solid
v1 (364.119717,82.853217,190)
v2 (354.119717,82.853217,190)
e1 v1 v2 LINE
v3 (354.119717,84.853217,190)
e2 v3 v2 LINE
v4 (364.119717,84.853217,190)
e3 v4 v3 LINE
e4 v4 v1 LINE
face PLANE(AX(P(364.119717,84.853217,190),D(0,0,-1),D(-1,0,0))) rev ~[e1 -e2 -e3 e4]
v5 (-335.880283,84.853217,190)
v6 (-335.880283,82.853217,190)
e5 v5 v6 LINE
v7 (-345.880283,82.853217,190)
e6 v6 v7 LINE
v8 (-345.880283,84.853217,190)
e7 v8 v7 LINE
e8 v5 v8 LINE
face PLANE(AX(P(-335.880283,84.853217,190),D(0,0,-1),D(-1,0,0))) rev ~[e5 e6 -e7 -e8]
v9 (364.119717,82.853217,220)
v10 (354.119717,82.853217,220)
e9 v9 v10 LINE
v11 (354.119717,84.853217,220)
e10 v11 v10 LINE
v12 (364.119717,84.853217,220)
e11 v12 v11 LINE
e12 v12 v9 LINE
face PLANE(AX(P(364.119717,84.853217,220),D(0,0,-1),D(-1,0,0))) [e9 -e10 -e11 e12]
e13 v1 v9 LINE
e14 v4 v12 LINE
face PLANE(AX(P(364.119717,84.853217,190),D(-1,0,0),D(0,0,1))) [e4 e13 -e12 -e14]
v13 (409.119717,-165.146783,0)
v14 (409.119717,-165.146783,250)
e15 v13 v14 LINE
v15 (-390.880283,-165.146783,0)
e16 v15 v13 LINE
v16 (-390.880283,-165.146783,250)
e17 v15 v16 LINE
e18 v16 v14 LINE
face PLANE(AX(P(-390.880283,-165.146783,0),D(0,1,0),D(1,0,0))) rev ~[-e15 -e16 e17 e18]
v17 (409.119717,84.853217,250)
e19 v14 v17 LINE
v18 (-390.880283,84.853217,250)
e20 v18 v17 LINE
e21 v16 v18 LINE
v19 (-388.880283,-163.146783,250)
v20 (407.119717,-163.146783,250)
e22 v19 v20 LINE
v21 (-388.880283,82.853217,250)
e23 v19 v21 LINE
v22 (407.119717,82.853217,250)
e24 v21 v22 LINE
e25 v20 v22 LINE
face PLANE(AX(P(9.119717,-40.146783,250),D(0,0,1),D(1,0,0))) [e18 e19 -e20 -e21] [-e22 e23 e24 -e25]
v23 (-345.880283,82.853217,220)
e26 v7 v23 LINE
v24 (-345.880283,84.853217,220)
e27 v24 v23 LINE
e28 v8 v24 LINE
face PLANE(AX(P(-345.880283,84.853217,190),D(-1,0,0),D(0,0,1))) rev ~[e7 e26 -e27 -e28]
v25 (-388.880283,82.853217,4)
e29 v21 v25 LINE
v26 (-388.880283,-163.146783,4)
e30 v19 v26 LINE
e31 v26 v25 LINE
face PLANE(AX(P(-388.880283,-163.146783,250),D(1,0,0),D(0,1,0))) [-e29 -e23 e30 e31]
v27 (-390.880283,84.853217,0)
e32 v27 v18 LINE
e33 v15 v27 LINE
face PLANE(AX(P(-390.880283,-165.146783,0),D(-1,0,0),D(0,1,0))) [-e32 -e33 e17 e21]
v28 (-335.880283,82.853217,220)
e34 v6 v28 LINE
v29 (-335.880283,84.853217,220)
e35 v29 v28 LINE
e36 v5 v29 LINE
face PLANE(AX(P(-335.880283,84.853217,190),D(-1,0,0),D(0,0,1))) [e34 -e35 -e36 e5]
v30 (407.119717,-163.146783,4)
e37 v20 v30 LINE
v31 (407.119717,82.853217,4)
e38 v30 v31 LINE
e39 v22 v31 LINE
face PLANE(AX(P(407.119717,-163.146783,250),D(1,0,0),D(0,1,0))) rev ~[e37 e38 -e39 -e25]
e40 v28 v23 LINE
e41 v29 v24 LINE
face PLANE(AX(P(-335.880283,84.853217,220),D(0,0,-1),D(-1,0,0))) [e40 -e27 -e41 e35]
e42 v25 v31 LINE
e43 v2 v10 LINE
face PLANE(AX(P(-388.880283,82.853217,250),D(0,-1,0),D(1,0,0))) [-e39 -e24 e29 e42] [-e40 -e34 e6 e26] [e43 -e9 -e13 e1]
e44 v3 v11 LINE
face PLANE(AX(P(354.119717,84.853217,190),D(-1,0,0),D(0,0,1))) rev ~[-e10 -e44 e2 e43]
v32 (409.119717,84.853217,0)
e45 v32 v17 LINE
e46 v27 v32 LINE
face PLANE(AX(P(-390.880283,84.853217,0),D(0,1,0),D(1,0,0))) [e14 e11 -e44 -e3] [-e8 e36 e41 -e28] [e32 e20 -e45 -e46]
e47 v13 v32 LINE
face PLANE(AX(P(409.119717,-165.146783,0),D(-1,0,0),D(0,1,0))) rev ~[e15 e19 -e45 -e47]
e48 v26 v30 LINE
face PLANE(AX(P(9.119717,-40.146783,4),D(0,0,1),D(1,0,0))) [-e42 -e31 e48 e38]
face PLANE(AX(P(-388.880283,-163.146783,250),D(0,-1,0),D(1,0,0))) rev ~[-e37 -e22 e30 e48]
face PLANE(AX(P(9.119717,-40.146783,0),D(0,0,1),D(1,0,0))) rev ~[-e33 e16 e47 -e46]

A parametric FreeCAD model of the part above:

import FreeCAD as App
import Part
import Sketcher
Q = App.Units.Quantity


def add_polygon(sketch, points):
    """Adds a closed chain of lines whose ends are joined by coincident constraints."""
    first, n = sketch.GeometryCount, len(points)
    for a, b in zip(points, points[1:] + points[:1]):
        sketch.addGeometry(Part.LineSegment(App.Vector(*a, 0), App.Vector(*b, 0)), False)
    for i in range(n):
        sketch.addConstraint(Sketcher.Constraint("Coincident", first + i, 2, first + (i + 1) % n, 1))

doc = App.newDocument("Part")
body = doc.addObject("PartDesign::Body", "Body")

# Sketch on XY plane
sketch1 = doc.addObject("Sketcher::SketchObject", "Sketch")
body.addObject(sketch1)
sketch1.AttachmentSupport = (doc.XY_Plane, [""])
sketch1.MapMode = "FlatFace"
add_polygon(sketch1, [(-391, 85), (-391, -165), (409, -165), (409, 85)])  # lines 0-3
sketch1.addConstraint(Sketcher.Constraint("Vertical", 0))
sketch1.addConstraint(Sketcher.Constraint("Horizontal", 1))
sketch1.addConstraint(Sketcher.Constraint("Vertical", 2))
sketch1.addConstraint(Sketcher.Constraint("Horizontal", 3))
sketch1.addConstraint(Sketcher.Constraint("DistanceX", 1, 1, 1, 2, Q("800 mm")))
sketch1.addConstraint(Sketcher.Constraint("DistanceY", 0, 2, 0, 1, Q("250 mm")))
sketch1.addConstraint(Sketcher.Constraint("DistanceX", 0, 2, -1, 1, Q("390.880283 mm")))
sketch1.addConstraint(Sketcher.Constraint("DistanceY", 0, 2, -1, 1, Q("165.146783 mm")))
pad1 = doc.addObject("PartDesign::Pad", "Pad")
body.addObject(pad1)
pad1.Profile = sketch1
pad1.Length = 250

# Sketch on XY plane
sketch2 = doc.addObject("Sketcher::SketchObject", "Sketch001")
body.addObject(sketch2)
sketch2.AttachmentSupport = (doc.XY_Plane, [""])
sketch2.MapMode = "FlatFace"
sketch2.AttachmentOffset = App.Placement(App.Vector(0, 0, 250), App.Rotation())
add_polygon(sketch2, [(-389, 83), (-389, -163), (407, -163), (407, 83)])  # lines 0-3
sketch2.addConstraint(Sketcher.Constraint("Vertical", 0))
sketch2.addConstraint(Sketcher.Constraint("Horizontal", 1))
sketch2.addConstraint(Sketcher.Constraint("Vertical", 2))
sketch2.addConstraint(Sketcher.Constraint("Horizontal", 3))
sketch2.addConstraint(Sketcher.Constraint("DistanceX", 1, 1, 1, 2, Q("796 mm")))
sketch2.addConstraint(Sketcher.Constraint("DistanceY", 0, 2, 0, 1, Q("246 mm")))
sketch2.addConstraint(Sketcher.Constraint("DistanceX", 0, 2, -1, 1, Q("388.880283 mm")))
sketch2.addConstraint(Sketcher.Constraint("DistanceY", 0, 2, -1, 1, Q("163.146783 mm")))
pocket1 = doc.addObject("PartDesign::Pocket", "Pocket")
body.addObject(pocket1)
pocket1.Profile = sketch2
pocket1.Length = 246

# Sketch on XZ plane
sketch3 = doc.addObject("Sketcher::SketchObject", "Sketch002")
body.addObject(sketch3)
sketch3.AttachmentSupport = (doc.XZ_Plane, [""])
sketch3.MapMode = "FlatFace"
sketch3.AttachmentOffset = App.Placement(App.Vector(0, 0, -84.853217), App.Rotation())
add_polygon(sketch3, [(364, 220), (364, 190), (354, 190), (354, 220)])  # lines 0-3
add_polygon(sketch3, [(-336, 220), (-336, 190), (-346, 190), (-346, 220)])  # lines 4-7
sketch3.addConstraint(Sketcher.Constraint("Vertical", 0))
sketch3.addConstraint(Sketcher.Constraint("Horizontal", 1))
sketch3.addConstraint(Sketcher.Constraint("Vertical", 2))
sketch3.addConstraint(Sketcher.Constraint("Horizontal", 3))
sketch3.addConstraint(Sketcher.Constraint("Vertical", 4))
sketch3.addConstraint(Sketcher.Constraint("Horizontal", 5))
sketch3.addConstraint(Sketcher.Constraint("Vertical", 6))
sketch3.addConstraint(Sketcher.Constraint("Horizontal", 7))
sketch3.addConstraint(Sketcher.Constraint("Horizontal", 1, 2, 4, 2))
sketch3.addConstraint(Sketcher.Constraint("Horizontal", 3, 2, 6, 2))
sketch3.addConstraint(Sketcher.Constraint("Equal", 3, 5))
sketch3.addConstraint(Sketcher.Constraint("DistanceX", 1, 2, 1, 1, Q("10 mm")))
sketch3.addConstraint(Sketcher.Constraint("DistanceY", 0, 2, 0, 1, Q("30 mm")))
sketch3.addConstraint(Sketcher.Constraint("DistanceY", -1, 1, 0, 2, Q("190 mm")))
sketch3.addConstraint(Sketcher.Constraint("DistanceX", 4, 2, 1, 2, Q("690 mm")))
sketch3.addConstraint(Sketcher.Constraint("DistanceX", -1, 1, 0, 2, Q("364.119717 mm")))
pocket2 = doc.addObject("PartDesign::Pocket", "Pocket001")
body.addObject(pocket2)
pocket2.Profile = sketch3
pocket2.Length = 2
pocket2.Reversed = True

doc.recompute()
